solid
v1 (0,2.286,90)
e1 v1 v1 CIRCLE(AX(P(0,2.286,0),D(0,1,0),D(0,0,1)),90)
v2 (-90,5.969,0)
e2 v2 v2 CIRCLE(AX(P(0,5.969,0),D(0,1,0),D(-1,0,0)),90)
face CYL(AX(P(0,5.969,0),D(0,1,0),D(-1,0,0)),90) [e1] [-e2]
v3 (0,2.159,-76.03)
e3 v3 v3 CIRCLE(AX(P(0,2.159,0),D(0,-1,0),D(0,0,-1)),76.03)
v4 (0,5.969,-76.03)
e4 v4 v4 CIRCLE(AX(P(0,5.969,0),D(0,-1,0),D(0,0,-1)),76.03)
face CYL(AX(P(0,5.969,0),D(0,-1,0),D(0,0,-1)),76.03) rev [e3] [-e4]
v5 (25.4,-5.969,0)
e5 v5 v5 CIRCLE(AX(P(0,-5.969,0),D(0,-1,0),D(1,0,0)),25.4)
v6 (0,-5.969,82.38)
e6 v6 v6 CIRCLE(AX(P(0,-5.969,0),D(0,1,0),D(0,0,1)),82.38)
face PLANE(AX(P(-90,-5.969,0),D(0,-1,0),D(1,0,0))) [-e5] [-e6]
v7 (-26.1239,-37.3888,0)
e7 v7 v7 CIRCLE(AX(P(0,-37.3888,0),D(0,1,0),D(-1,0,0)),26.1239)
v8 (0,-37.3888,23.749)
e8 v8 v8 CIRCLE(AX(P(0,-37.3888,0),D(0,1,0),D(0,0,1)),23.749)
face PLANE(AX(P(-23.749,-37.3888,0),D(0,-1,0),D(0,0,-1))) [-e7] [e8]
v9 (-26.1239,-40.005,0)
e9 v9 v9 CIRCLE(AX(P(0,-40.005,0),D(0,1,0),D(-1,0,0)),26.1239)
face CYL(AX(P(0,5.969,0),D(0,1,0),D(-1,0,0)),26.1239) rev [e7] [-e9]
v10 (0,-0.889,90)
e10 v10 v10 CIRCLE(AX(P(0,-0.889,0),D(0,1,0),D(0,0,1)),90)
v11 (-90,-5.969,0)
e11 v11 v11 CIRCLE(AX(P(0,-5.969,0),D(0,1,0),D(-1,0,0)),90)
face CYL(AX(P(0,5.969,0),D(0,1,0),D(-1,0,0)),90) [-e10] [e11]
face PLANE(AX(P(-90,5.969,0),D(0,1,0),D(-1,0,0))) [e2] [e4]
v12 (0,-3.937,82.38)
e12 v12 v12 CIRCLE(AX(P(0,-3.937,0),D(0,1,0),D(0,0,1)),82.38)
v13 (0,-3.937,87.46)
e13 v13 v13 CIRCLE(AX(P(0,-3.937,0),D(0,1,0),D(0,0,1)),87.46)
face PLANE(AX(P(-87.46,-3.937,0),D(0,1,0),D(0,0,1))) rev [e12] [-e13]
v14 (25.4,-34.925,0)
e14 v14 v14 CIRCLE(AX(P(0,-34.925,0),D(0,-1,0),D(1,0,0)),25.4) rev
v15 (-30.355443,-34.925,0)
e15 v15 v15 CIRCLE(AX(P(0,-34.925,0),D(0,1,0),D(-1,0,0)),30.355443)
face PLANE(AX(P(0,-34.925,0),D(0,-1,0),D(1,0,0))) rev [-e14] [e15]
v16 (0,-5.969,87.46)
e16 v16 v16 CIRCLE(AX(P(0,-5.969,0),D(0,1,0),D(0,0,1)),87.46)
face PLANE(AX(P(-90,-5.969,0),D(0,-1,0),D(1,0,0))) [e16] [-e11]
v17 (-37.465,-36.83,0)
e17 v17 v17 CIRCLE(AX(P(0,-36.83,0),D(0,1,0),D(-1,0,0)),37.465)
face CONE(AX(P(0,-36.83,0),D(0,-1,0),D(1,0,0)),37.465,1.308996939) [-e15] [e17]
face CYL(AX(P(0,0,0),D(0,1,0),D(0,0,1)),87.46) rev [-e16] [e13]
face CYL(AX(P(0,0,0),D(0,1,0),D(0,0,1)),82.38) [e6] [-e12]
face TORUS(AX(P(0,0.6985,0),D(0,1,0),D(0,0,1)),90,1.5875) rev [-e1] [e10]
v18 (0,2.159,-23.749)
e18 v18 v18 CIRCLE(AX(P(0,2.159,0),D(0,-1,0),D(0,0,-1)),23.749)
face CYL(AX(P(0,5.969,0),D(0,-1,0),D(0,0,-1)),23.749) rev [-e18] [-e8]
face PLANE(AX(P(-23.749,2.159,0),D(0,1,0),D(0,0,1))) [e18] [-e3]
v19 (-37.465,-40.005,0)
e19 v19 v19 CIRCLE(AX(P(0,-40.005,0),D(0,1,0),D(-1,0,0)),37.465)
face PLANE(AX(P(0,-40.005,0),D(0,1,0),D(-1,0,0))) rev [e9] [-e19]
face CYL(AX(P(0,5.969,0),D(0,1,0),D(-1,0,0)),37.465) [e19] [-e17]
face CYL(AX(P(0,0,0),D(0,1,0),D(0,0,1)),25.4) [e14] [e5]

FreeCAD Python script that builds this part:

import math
import FreeCAD as App
import Part
import Sketcher

V = App.Vector
Q = App.Units.Quantity


def add_polygon(sketch, points):
    """Adds a closed chain of lines whose ends are joined by coincident constraints."""
    first, n = sketch.GeometryCount, len(points)
    for a, b in zip(points, points[1:] + points[:1]):
        sketch.addGeometry(Part.LineSegment(App.Vector(*a, 0), App.Vector(*b, 0)), False)
    for i in range(n):
        sketch.addConstraint(Sketcher.Constraint("Coincident", first + i, 2, first + (i + 1) % n, 1))

doc = App.newDocument("Part")
body = doc.addObject("PartDesign::Body", "Body")

# Sketch on XY plane
sketch1 = doc.addObject("Sketcher::SketchObject", "Sketch")
body.addObject(sketch1)
sketch1.AttachmentSupport = (doc.XY_Plane, [""])
sketch1.MapMode = "FlatFace"
add_polygon(sketch1, [(-90, 5.969), (-90, -5.969), (0, -5.969), (0, 5.969)])  # lines 0-3
sketch1.addConstraint([
    Sketcher.Constraint("Vertical", 0),
    Sketcher.Constraint("Horizontal", 1),
    Sketcher.Constraint("Vertical", 2),
    Sketcher.Constraint("Horizontal", 3),
    Sketcher.Constraint("Symmetric", 1, 2, 2, 2, -1, 1),
    Sketcher.Constraint("DistanceY", 0, 2, 0, 1, Q("0.47 in")),
    Sketcher.Constraint("DistanceX", 1, 1, 1, 2, 90.0),
])
revolution = doc.addObject("PartDesign::Revolution", "Revolution")
body.addObject(revolution)
revolution.Profile = sketch1
revolution.ReferenceAxis = (sketch1, ["V_Axis"])
revolution.Angle = 360

# Sketch on XY plane
sketch2 = doc.addObject("Sketcher::SketchObject", "Sketch001")
body.addObject(sketch2)
sketch2.AttachmentSupport = (doc.XY_Plane, [""])
sketch2.MapMode = "FlatFace"
add_polygon(sketch2, [(-23.749, 2.159), (-23.749, -5.969), (0, -5.969), (0, 5.969), (-76.03, 5.969), (-76.03, 2.159)])  # lines 0-5
sketch2.addConstraint([
    Sketcher.Constraint("Vertical", 0),
    Sketcher.Constraint("Horizontal", 1),
    Sketcher.Constraint("Vertical", 2),
    Sketcher.Constraint("Horizontal", 3),
    Sketcher.Constraint("Vertical", 4),
    Sketcher.Constraint("Horizontal", 5),
    Sketcher.Constraint("Symmetric", 1, 2, 2, 2, -1, 1),
    Sketcher.Constraint("DistanceY", 0, 2, 0, 1, Q("0.32 in")),
    Sketcher.Constraint("DistanceY", 2, 1, 2, 2, Q("0.47 in")),
    Sketcher.Constraint("DistanceX", 1, 1, 1, 2, Q("0.935 in")),
    Sketcher.Constraint("DistanceX", 3, 2, 3, 1, 76.03),
])
groove = doc.addObject("PartDesign::Groove", "Groove")
body.addObject(groove)
groove.Profile = sketch2
groove.ReferenceAxis = (sketch2, ["V_Axis"])
groove.Angle = 360
body2 = doc.addObject("PartDesign::Body", "Body001")

# Sketch on XY plane
sketch3 = doc.addObject("Sketcher::SketchObject", "Sketch002")
body2.addObject(sketch3)
sketch3.AttachmentSupport = (doc.getObject("XY_Plane001"), [""])
sketch3.MapMode = "FlatFace"
add_polygon(sketch3, [(30.355443, -34.925), (23.749, -34.925), (23.749, -37.3888), (26.1239, -37.3888), (26.1239, -40.005), (37.465, -40.005), (37.465, -36.83)])  # lines 0-6
sketch3.addConstraint([
    Sketcher.Constraint("Horizontal", 0),
    Sketcher.Constraint("Vertical", 1),
    Sketcher.Constraint("Horizontal", 2),
    Sketcher.Constraint("Vertical", 3),
    Sketcher.Constraint("Horizontal", 4),
    Sketcher.Constraint("Vertical", 5),
    Sketcher.Constraint("Angle", 6, Q("165 deg")),
    Sketcher.Constraint("DistanceY", 3, 2, 0, 2, Q("0.2 in")),
    Sketcher.Constraint("DistanceY", 1, 2, 1, 1, Q("0.097 in")),
    Sketcher.Constraint("DistanceY", 5, 1, 5, 2, Q("0.125 in")),
    Sketcher.Constraint("DistanceY", 5, 2, -1, 1, Q("1.45 in")),
    Sketcher.Constraint("DistanceX", 1, 2, 4, 2, Q("0.54 in")),
    Sketcher.Constraint("DistanceX", 2, 1, 2, 2, Q("0.0935 in")),
    Sketcher.Constraint("DistanceX", -1, 1, 0, 2, Q("0.935 in")),
])
revolution2 = doc.addObject("PartDesign::Revolution", "Revolution001")
body2.addObject(revolution2)
revolution2.Profile = sketch3
revolution2.ReferenceAxis = (sketch3, ["V_Axis"])
revolution2.Angle = 360
body.AllowCompound = True
doc.recompute()

boolean = doc.addObject("PartDesign::Boolean", "Boolean")
body.addObject(boolean)
boolean.Type = "Fuse"
boolean.addObjects([body2])

# Sketch on XY plane
sketch4 = doc.addObject("Sketcher::SketchObject", "Sketch003")
body.addObject(sketch4)
sketch4.AttachmentSupport = (doc.XY_Plane, [""])
sketch4.MapMode = "FlatFace"
add_polygon(sketch4, [(-23.749, -37.3888), (-23.749, 2.159), (-25.4, 2.159), (-25.4, -37.3888)])  # lines 0-3
sketch4.addConstraint([
    Sketcher.Constraint("Vertical", 0),
    Sketcher.Constraint("Horizontal", 1),
    Sketcher.Constraint("Vertical", 2),
    Sketcher.Constraint("Horizontal", 3),
    Sketcher.Constraint("DistanceX", 1, 2, -1, 1, Q("1 in")),
    Sketcher.Constraint("DistanceX", 1, 2, 1, 1, Q("0.065 in")),
    Sketcher.Constraint("DistanceY", 0, 1, 0, 2, Q("1.557 in")),
    Sketcher.Constraint("DistanceY", -1, 1, 0, 2, Q("0.085 in")),
])
revolution3 = doc.addObject("PartDesign::Revolution", "Revolution002")
body.addObject(revolution3)
revolution3.Profile = sketch4
revolution3.ReferenceAxis = (sketch4, ["V_Axis"])
revolution3.Angle = 360

# Sketch on XY plane
sketch5 = doc.addObject("Sketcher::SketchObject", "Sketch004")
body.addObject(sketch5)
sketch5.AttachmentSupport = (doc.XY_Plane, [""])
sketch5.MapMode = "FlatFace"
add_polygon(sketch5, [(-87.46, -3.937), (-87.46, -5.969), (-82.38, -5.969), (-82.38, -3.937)])  # lines 0-3
sketch5.addConstraint([
    Sketcher.Constraint("Vertical", 0),
    Sketcher.Constraint("Horizontal", 1),
    Sketcher.Constraint("Vertical", 2),
    Sketcher.Constraint("Horizontal", 3),
    Sketcher.Constraint("DistanceX", 1, 1, 1, 2, Q("0.2 in")),
    Sketcher.Constraint("DistanceY", 0, 2, 0, 1, Q("0.08 in")),
    Sketcher.Constraint("DistanceY", 0, 2, -1, 1, Q("0.235 in")),
    Sketcher.Constraint("DistanceX", 0, 2, -1, 1, 87.46),
])
groove2 = doc.addObject("PartDesign::Groove", "Groove001")
body.addObject(groove2)
groove2.Profile = sketch5
groove2.ReferenceAxis = (sketch5, ["V_Axis"])
groove2.Angle = 360

# Sketch on XY plane
sketch6 = doc.addObject("Sketcher::SketchObject", "Sketch005")
body.addObject(sketch6)
sketch6.AttachmentSupport = (doc.XY_Plane, [""])
sketch6.MapMode = "FlatFace"
sketch6.addGeometry([
    Part.LineSegment(V(-90, 2.286, 0), V(-90, -0.889, 0)),
    Part.ArcOfCircle(Part.Circle(V(-90, 0.6985, 0), V(0, 0, 1), 1.5875), math.radians(-90), math.radians(90)),
], False)
sketch6.addConstraint([
    Sketcher.Constraint("Coincident", 0, 1, 1, 2),
    Sketcher.Constraint("Coincident", 1, 1, 0, 2),
    Sketcher.Constraint("Vertical", 0),
    Sketcher.Constraint("Vertical", 1, 3, 0, 1),
    Sketcher.Constraint("Radius", 1, Q("0.0625 in")),
    Sketcher.Constraint("DistanceY", -1, 1, 0, 1, Q("0.09 in")),
    Sketcher.Constraint("DistanceX", 1, 3, -1, 1, 90.0),
])
groove3 = doc.addObject("PartDesign::Groove", "Groove002")
body.addObject(groove3)
groove3.Profile = sketch6
groove3.ReferenceAxis = (sketch6, ["V_Axis"])
groove3.Angle = 360

doc.recompute()
